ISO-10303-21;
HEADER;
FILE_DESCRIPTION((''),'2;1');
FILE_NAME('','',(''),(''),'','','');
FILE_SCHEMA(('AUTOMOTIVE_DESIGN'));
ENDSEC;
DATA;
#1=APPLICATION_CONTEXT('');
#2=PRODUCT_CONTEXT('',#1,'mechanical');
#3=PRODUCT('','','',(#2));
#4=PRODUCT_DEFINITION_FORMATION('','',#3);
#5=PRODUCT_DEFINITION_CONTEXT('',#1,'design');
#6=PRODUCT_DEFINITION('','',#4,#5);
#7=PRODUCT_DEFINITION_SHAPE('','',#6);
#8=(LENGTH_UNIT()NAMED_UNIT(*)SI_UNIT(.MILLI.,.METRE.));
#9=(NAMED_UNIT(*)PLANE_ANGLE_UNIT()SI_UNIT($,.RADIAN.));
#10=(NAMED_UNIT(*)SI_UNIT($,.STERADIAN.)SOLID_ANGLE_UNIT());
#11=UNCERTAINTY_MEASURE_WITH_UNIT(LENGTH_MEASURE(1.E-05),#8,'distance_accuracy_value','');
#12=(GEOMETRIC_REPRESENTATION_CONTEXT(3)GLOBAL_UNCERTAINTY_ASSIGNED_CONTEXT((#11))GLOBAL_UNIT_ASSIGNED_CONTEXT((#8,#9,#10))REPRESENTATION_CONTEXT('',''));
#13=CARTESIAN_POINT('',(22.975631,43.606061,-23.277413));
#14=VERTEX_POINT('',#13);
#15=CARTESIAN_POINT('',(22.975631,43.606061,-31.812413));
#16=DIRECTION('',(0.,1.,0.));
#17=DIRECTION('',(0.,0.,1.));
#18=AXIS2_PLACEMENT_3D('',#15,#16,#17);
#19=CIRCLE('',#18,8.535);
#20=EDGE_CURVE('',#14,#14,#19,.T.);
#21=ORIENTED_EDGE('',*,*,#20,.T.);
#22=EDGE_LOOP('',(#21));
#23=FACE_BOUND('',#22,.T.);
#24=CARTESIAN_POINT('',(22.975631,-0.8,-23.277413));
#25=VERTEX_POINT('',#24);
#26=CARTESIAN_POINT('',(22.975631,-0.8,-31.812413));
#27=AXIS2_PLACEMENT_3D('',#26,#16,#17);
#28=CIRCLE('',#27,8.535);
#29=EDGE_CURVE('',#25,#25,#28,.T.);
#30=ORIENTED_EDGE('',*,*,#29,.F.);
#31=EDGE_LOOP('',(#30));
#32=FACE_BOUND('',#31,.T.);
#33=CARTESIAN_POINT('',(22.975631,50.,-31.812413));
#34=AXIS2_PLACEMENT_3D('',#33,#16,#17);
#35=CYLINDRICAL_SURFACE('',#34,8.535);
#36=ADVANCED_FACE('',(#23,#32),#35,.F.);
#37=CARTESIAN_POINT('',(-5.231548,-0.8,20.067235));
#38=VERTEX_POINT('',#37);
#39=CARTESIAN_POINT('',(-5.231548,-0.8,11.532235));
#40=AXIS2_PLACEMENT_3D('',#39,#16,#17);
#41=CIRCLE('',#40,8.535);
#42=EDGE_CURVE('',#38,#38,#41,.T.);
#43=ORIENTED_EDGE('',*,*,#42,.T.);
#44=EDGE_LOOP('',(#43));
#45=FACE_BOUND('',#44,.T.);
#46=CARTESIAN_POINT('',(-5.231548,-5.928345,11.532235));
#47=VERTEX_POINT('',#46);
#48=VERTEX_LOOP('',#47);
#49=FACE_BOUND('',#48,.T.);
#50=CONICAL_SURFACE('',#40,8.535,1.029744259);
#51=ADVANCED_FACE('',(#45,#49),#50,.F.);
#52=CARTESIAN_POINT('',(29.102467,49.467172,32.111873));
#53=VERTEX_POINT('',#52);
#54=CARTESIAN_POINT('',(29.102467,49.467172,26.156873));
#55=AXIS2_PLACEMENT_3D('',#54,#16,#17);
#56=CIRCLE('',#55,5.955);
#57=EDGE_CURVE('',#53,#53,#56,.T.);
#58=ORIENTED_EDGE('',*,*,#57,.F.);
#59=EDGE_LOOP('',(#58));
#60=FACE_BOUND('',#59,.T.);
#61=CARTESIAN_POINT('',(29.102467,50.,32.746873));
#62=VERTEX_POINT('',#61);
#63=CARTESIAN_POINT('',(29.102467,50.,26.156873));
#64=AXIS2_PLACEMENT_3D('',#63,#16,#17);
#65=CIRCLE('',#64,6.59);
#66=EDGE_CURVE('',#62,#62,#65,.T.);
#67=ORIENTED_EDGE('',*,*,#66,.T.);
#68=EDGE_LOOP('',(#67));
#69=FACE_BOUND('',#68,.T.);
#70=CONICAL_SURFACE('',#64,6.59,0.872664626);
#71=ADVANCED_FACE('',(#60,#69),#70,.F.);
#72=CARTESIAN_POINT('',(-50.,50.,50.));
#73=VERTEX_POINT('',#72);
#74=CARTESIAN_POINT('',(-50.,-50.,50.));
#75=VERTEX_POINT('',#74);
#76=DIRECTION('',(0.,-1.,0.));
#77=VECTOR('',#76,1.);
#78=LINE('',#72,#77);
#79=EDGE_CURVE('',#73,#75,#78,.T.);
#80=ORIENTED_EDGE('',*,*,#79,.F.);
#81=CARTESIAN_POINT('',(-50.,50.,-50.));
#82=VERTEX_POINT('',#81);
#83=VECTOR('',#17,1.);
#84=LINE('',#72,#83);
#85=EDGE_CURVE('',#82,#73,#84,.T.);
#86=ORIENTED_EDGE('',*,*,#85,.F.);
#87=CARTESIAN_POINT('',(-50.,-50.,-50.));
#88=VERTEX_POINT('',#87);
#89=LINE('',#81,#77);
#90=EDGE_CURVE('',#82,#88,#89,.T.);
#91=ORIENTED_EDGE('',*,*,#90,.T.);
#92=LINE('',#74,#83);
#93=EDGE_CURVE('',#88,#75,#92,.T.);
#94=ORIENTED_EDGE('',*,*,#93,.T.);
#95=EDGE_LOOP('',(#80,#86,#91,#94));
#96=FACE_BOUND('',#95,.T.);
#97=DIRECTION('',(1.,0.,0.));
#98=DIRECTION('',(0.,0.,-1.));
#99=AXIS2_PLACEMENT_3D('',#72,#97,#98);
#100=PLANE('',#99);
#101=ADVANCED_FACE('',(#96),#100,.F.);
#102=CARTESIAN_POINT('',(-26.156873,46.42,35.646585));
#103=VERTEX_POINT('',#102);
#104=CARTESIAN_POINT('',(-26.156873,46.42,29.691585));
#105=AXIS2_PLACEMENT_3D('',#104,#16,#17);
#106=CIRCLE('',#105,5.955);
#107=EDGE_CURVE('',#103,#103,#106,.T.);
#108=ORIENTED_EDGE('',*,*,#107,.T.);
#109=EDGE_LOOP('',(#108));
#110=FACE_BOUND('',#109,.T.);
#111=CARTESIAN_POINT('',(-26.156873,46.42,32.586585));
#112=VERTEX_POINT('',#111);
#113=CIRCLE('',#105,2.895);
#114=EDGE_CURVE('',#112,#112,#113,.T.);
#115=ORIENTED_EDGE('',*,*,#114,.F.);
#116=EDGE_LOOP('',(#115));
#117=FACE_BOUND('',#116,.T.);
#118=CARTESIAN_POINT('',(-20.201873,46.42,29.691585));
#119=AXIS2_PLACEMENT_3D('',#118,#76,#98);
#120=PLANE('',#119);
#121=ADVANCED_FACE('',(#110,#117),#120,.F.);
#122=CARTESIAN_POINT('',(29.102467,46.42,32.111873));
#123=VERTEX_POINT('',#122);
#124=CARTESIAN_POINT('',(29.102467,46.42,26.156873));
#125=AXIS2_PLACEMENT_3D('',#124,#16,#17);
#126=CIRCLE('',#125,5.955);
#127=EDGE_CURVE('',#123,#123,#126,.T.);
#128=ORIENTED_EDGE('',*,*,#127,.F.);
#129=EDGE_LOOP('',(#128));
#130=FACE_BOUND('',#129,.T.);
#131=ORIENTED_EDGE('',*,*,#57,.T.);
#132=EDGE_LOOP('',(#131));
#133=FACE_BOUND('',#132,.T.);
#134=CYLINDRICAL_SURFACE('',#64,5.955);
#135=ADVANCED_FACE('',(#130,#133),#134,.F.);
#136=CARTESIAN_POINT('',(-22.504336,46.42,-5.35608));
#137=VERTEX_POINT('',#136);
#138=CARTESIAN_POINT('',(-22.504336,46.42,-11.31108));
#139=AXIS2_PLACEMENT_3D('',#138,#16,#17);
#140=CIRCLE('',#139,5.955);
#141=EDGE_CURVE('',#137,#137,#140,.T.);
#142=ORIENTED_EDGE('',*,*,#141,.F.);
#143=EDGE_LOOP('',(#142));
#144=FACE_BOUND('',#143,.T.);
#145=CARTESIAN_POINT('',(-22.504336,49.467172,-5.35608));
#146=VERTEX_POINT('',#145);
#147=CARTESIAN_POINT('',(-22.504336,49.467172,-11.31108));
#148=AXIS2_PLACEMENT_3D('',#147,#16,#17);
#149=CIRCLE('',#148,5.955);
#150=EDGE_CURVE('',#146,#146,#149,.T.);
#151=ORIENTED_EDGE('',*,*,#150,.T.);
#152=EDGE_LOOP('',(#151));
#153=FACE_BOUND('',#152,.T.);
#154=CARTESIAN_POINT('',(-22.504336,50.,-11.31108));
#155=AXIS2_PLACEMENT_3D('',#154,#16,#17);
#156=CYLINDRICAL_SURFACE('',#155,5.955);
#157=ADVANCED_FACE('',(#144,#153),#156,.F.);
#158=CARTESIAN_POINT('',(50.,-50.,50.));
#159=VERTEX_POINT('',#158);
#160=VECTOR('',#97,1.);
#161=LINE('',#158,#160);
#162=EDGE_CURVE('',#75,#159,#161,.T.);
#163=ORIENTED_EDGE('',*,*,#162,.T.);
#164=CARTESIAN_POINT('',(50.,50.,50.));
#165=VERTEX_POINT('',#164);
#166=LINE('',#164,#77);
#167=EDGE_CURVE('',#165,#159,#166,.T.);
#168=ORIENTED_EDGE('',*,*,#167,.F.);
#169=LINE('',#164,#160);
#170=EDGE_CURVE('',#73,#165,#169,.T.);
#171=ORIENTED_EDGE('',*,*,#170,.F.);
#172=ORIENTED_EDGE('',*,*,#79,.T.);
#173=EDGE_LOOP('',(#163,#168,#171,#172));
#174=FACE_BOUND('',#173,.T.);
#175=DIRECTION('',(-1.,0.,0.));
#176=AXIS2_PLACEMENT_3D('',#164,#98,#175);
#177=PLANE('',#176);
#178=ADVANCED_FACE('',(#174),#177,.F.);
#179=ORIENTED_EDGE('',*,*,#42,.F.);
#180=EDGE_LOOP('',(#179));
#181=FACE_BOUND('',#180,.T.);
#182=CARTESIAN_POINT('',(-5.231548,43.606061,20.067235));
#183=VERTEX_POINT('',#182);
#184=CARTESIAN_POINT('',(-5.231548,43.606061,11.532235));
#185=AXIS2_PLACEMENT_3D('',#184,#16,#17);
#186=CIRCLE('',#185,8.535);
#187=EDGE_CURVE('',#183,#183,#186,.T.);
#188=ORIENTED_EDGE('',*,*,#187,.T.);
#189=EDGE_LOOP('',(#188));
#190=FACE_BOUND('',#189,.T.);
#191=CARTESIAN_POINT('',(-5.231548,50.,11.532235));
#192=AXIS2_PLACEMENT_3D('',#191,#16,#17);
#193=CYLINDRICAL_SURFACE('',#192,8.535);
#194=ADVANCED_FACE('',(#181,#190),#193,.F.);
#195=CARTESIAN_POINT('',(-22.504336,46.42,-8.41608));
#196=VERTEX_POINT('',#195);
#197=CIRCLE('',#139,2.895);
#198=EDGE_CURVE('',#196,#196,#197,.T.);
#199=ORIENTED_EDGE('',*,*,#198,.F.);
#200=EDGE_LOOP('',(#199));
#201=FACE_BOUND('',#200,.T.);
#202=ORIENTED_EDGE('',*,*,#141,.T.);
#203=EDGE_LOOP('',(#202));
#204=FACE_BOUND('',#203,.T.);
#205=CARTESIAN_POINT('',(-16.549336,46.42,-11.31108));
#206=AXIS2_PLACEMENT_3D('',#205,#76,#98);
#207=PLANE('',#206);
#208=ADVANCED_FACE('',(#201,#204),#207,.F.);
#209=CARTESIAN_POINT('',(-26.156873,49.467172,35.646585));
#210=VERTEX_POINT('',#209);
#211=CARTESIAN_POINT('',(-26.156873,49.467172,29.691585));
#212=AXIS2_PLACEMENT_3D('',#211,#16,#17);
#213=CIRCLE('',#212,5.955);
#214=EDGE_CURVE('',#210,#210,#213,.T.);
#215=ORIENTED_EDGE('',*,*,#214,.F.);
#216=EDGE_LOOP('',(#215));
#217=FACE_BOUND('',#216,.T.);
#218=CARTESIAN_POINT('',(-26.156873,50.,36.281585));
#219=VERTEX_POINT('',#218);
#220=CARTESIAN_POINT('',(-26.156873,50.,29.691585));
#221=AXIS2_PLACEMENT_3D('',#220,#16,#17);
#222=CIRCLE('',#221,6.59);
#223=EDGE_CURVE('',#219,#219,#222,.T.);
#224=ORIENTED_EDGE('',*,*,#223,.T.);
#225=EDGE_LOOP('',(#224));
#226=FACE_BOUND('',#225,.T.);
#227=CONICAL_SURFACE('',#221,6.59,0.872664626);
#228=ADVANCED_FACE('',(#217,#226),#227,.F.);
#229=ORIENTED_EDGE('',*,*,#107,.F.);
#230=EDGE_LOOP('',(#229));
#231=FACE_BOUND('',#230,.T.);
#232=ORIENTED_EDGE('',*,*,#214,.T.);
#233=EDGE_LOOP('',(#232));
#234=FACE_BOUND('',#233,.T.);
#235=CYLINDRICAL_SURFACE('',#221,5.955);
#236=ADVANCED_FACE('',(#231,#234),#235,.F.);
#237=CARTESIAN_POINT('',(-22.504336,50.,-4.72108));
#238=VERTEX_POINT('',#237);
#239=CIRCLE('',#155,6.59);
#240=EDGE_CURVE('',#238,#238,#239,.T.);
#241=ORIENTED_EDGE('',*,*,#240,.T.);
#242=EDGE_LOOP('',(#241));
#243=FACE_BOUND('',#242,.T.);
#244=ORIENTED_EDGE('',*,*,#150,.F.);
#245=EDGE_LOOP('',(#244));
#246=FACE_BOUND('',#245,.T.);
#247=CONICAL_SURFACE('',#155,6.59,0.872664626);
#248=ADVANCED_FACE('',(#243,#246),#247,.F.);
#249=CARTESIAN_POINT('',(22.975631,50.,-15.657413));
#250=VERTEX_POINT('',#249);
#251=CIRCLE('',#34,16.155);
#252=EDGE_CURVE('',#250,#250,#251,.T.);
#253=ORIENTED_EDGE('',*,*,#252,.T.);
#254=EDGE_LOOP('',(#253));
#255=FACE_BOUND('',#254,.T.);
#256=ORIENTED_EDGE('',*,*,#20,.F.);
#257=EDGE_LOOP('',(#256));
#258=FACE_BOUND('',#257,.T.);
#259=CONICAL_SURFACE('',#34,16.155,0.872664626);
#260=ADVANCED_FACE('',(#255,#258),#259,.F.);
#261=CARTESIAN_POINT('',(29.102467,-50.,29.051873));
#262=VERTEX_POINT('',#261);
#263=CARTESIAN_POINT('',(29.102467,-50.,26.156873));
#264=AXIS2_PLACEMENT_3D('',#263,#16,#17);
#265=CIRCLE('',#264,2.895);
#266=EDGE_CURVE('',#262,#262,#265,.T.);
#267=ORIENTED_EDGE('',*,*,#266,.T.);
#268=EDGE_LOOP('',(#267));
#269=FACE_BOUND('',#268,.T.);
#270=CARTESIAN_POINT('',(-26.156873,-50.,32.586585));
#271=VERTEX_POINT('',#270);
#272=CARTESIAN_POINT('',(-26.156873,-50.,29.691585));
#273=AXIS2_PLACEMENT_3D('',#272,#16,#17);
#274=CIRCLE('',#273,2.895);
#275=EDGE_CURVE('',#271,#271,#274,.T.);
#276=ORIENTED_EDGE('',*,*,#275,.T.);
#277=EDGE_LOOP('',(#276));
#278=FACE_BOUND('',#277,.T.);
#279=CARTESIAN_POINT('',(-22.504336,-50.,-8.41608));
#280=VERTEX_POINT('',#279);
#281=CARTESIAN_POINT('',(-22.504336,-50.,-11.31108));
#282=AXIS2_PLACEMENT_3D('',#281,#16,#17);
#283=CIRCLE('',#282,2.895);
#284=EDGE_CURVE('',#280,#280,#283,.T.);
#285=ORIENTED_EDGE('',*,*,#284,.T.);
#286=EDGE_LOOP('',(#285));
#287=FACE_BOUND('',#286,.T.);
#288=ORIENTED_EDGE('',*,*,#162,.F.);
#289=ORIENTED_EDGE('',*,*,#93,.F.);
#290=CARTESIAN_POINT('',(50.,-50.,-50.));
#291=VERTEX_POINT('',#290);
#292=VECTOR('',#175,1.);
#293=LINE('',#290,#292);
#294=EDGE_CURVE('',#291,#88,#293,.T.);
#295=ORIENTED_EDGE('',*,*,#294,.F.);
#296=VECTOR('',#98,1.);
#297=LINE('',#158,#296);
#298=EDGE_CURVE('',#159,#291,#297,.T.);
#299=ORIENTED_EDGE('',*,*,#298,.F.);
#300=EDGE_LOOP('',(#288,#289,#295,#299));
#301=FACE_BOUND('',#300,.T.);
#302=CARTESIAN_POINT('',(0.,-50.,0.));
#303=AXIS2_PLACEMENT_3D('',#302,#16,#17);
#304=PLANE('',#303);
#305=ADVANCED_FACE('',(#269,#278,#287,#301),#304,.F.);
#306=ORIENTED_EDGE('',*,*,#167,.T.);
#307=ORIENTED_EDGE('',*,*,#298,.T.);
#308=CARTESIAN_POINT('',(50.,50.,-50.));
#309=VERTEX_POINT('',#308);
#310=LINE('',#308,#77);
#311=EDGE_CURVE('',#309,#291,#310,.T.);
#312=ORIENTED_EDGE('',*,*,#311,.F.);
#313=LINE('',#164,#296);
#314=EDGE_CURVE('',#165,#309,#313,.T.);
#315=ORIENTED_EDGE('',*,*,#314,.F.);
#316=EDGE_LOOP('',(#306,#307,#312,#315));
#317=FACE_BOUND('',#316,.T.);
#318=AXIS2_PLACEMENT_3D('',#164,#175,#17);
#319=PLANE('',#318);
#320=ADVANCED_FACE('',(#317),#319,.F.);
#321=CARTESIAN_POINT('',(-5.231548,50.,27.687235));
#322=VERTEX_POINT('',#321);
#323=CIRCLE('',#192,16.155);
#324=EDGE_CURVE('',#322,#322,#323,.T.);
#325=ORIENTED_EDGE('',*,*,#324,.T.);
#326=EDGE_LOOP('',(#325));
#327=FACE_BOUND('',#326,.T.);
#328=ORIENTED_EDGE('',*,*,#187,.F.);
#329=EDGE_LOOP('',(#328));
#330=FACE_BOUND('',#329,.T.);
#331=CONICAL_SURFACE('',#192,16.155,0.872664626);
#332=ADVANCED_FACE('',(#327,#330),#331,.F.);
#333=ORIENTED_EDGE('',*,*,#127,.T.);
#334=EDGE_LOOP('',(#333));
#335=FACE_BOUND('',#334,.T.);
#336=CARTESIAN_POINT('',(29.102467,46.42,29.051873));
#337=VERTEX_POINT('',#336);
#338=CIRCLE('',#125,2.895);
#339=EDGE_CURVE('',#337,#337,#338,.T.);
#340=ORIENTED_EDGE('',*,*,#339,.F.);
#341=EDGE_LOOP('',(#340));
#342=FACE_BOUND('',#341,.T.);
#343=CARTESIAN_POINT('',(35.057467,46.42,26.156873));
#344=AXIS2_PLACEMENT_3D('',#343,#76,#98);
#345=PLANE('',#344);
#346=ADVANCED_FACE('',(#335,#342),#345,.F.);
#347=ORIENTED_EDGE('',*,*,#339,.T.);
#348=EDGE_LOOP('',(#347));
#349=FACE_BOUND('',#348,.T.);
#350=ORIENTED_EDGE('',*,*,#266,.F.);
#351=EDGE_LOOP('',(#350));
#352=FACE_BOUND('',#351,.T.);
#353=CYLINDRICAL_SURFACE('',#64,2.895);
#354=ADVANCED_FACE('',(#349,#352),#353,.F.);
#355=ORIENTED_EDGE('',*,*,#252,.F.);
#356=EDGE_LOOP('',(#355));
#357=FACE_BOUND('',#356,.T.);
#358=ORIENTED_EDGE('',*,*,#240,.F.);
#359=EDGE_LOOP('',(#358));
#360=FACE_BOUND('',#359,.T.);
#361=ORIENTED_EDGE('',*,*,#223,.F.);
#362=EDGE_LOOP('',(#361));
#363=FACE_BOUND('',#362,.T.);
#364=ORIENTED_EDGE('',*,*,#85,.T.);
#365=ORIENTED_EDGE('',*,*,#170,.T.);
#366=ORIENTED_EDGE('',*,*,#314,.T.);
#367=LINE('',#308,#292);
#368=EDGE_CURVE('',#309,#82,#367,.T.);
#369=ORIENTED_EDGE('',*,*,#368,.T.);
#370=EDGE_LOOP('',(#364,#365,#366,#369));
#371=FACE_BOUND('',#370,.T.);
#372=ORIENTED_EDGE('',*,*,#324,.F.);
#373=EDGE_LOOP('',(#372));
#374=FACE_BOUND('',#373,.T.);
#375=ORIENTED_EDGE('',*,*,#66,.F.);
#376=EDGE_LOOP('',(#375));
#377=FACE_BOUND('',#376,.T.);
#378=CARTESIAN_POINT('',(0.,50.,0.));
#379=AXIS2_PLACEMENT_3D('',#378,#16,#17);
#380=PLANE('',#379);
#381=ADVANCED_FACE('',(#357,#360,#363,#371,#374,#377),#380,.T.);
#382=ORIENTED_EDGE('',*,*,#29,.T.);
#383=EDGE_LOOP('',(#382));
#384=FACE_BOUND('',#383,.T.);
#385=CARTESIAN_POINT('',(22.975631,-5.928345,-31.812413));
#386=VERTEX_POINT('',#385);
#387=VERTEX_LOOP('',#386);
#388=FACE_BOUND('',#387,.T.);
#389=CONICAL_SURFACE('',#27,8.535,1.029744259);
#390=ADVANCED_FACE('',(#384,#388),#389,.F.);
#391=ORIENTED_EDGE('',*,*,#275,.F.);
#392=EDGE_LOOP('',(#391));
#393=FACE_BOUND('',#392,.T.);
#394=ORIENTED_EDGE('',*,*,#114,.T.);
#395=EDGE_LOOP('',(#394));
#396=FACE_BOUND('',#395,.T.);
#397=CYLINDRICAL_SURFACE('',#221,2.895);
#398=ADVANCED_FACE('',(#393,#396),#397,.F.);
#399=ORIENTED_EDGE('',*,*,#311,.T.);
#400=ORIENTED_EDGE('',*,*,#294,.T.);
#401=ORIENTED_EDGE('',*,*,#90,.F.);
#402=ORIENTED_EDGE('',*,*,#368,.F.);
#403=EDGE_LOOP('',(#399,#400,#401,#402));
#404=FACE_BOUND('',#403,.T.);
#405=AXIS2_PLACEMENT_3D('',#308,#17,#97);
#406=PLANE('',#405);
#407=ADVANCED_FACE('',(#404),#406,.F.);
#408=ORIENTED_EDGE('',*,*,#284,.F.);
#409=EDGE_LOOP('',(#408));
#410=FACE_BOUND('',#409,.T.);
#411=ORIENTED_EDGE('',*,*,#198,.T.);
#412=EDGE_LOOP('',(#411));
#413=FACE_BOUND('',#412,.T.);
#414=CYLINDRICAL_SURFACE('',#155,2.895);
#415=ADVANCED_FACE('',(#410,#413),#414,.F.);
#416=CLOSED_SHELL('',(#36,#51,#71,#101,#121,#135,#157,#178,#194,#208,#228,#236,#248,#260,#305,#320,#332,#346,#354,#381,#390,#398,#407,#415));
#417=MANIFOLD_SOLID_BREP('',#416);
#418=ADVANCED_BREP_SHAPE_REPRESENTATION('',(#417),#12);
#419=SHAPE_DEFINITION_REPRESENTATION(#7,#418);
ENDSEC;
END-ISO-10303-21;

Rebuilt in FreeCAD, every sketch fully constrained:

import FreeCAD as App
import Part
import Sketcher

V = App.Vector
Q = App.Units.Quantity


def add_polygon(sketch, points):
    """Adds a closed chain of lines whose ends are joined by coincident constraints."""
    first, n = sketch.GeometryCount, len(points)
    for a, b in zip(points, points[1:] + points[:1]):
        sketch.addGeometry(Part.LineSegment(App.Vector(*a, 0), App.Vector(*b, 0)), False)
    for i in range(n):
        sketch.addConstraint(Sketcher.Constraint("Coincident", first + i, 2, first + (i + 1) % n, 1))

doc = App.newDocument("Part")
body = doc.addObject("PartDesign::Body", "Body")

sketch1 = body.newObject("Sketcher::SketchObject", "Sketch")
sketch1.AttachmentSupport = (doc.getObject("XZ_Plane"), [""])
sketch1.MapMode = "FlatFace"
add_polygon(sketch1, [(-50, -50), (-50, 50), (50, 50), (50, -50)])
sketch1.addConstraint([
    Sketcher.Constraint("Vertical", 0),
    Sketcher.Constraint("Horizontal", 1),
    Sketcher.Constraint("Vertical", 2),
    Sketcher.Constraint("Horizontal", 3),
    Sketcher.Constraint("Symmetric", 0, 2, 2, 2, -1, 1),
    Sketcher.Constraint("Equal", 3, 0),
    Sketcher.Constraint("DistanceX", 1, 1, 1, 2, Q("100 mm")),
])
pad1 = body.newObject("PartDesign::Pad", "Pad")
pad1.Profile = sketch1
pad1.Length = 100
pad1.Midplane = True

sketch2 = body.newObject("Sketcher::SketchObject", "Sketch001")
sketch2.AttachmentSupport = (doc.getObject("XZ_Plane"), [""])
sketch2.MapMode = "FlatFace"
sketch2.AttachmentOffset = App.Placement(V(0, 0, -50), App.Rotation())
sketch2.addGeometry([
    Part.Circle(V(23, -32, 0), V(0, 0, 1), 9),
    Part.Circle(V(-5, 12, 0), V(0, 0, 1), 9),
], False)
sketch2.addConstraint([
    Sketcher.Constraint("Equal", 0, 1),
    Sketcher.Constraint("Diameter", 0, Q("17.07 mm")),
    Sketcher.Constraint("DistanceX", -1, 1, 0, 3, Q("22.975631 mm")),
    Sketcher.Constraint("DistanceX", 1, 3, 0, 3, Q("28.207179 mm")),
    Sketcher.Constraint("DistanceY", 0, 3, -1, 1, Q("31.812413 mm")),
    Sketcher.Constraint("DistanceY", -1, 1, 1, 3, Q("11.532235 mm")),
])
doc.recompute()
hole = body.newObject("PartDesign::Hole", "Hole")
hole.Profile = sketch2
hole.ThreadType = "None"
hole.Diameter = 17.07
hole.DepthType = "Dimension"
hole.Depth = 50.8
hole.DrillPoint = "Angled"
hole.DrillPointAngle = 118
hole.HoleCutType = "Countersink"
hole.HoleCutDiameter = 32.31
hole.HoleCutCountersinkAngle = 100
hole.Reversed = True

sketch3 = body.newObject("Sketcher::SketchObject", "Sketch002")
sketch3.AttachmentSupport = (doc.getObject("YZ_Plane"), [""])
sketch3.MapMode = "FlatFace"
sketch3.AttachmentOffset = App.Placement(V(0, 0, -22.504336), App.Rotation())
add_polygon(sketch3, [(-50, -11.3), (50, -11.3), (50, -4.7), (49.5, -5.4), (46.4, -5.4), (46.4, -8.4), (-50, -8.4)])
sketch3.addGeometry(Part.LineSegment(V(50, -11.3, 0), V(-50, -11.3, 0)), True)
sketch3.addConstraint([
    Sketcher.Constraint("Horizontal", 0),
    Sketcher.Constraint("Vertical", 1),
    Sketcher.Constraint("Horizontal", 3),
    Sketcher.Constraint("Vertical", 4),
    Sketcher.Constraint("Horizontal", 5),
    Sketcher.Constraint("Vertical", 6),
    Sketcher.Constraint("Horizontal", 7),
    Sketcher.Constraint("Coincident", 7, 1, 0, 2),
    Sketcher.Constraint("Vertical", 5, 2, 7, 2),
    Sketcher.Constraint("DistanceX", 0, 1, 0, 2, Q("100 mm")),
    Sketcher.Constraint("Angle", 2, Q("-130 deg")),
    Sketcher.Constraint("DistanceX", -1, 1, 0, 2, Q("50 mm")),
    Sketcher.Constraint("DistanceX", 5, 2, 5, 1, Q("96.42 mm")),
    Sketcher.Constraint("DistanceY", 1, 1, 1, 2, Q("6.59 mm")),
    Sketcher.Constraint("DistanceY", 4, 2, 4, 1, Q("3.06 mm")),
    Sketcher.Constraint("DistanceY", 6, 2, 6, 1, Q("2.895 mm")),
    Sketcher.Constraint("DistanceY", 0, 2, -1, 1, Q("11.31108 mm")),
])
groove = body.newObject("PartDesign::Groove", "Groove")
groove.Profile = sketch3
groove.ReferenceAxis = (sketch3, ["Axis0"])
groove.Angle = 360
doc.recompute()

datumline = body.newObject("PartDesign::Line", "DatumLine")
datumline.Placement = App.Placement(V(0, 0, 0), App.Rotation(V(0, 0, 1), V(-0.088729108, 0, 0.996055794)))
linearpattern = body.newObject("PartDesign::LinearPattern", "LinearPattern")
linearpattern.Originals = [groove]
linearpattern.Direction = (datumline, [""])
linearpattern.Mode = "offset"
linearpattern.Offset = 41.165029
linearpattern.Occurrences = 2
body.Tip = linearpattern
doc.recompute()

datumline2 = body.newObject("PartDesign::Line", "DatumLine001")
datumline2.Placement = App.Placement(V(0, 0, 0), App.Rotation(V(0, 0, 1), V(0.809215173, 0, 0.587512386)))
linearpattern2 = body.newObject("PartDesign::LinearPattern", "LinearPattern001")
linearpattern2.Originals = [groove]
linearpattern2.Direction = (datumline2, [""])
linearpattern2.Mode = "offset"
linearpattern2.Offset = 63.773894
linearpattern2.Occurrences = 2
body.Tip = linearpattern2

doc.recompute()
